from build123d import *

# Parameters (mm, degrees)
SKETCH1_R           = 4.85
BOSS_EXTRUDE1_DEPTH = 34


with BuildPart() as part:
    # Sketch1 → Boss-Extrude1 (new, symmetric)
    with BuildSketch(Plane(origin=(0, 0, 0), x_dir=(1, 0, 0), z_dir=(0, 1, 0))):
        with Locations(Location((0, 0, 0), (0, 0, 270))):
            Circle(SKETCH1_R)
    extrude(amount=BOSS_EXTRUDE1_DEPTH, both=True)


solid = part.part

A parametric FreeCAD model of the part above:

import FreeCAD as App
import Part
import Sketcher
from FreeCAD import Vector

doc = App.newDocument("Part")
params = doc.addObject("Spreadsheet::Sheet", "Params")
for row, (alias, value) in enumerate([
    ("sketch1_diameter", "9.7 mm"),
    ("pad1_length", "68 mm"),
], start=1):
    params.set(f"A{row}", alias)
    params.set(f"B{row}", "=" + value)
    params.setAlias(f"B{row}", alias)

body = doc.addObject("PartDesign::Body", "Body")

sketch1 = body.newObject("Sketcher::SketchObject", "Sketch")
sketch1.AttachmentSupport = (doc.getObject("XZ_Plane"), [""])
sketch1.MapMode = "FlatFace"
sketch1.addGeometry(Part.Circle(Vector(0, 0, 0), Vector(0, 0, 1), 4.8), False)
sketch1.addConstraint(Sketcher.Constraint("Coincident", 0, 3, -1, 1))
sketch1.addConstraint(Sketcher.Constraint("Diameter", 0, 9.7))
sketch1.setExpression("Constraints[1]", "Params.sketch1_diameter")
pad1 = body.newObject("PartDesign::Pad", "Pad")
pad1.Profile = sketch1
pad1.setExpression("Length", "Params.pad1_length")
pad1.Midplane = True

doc.recompute()
